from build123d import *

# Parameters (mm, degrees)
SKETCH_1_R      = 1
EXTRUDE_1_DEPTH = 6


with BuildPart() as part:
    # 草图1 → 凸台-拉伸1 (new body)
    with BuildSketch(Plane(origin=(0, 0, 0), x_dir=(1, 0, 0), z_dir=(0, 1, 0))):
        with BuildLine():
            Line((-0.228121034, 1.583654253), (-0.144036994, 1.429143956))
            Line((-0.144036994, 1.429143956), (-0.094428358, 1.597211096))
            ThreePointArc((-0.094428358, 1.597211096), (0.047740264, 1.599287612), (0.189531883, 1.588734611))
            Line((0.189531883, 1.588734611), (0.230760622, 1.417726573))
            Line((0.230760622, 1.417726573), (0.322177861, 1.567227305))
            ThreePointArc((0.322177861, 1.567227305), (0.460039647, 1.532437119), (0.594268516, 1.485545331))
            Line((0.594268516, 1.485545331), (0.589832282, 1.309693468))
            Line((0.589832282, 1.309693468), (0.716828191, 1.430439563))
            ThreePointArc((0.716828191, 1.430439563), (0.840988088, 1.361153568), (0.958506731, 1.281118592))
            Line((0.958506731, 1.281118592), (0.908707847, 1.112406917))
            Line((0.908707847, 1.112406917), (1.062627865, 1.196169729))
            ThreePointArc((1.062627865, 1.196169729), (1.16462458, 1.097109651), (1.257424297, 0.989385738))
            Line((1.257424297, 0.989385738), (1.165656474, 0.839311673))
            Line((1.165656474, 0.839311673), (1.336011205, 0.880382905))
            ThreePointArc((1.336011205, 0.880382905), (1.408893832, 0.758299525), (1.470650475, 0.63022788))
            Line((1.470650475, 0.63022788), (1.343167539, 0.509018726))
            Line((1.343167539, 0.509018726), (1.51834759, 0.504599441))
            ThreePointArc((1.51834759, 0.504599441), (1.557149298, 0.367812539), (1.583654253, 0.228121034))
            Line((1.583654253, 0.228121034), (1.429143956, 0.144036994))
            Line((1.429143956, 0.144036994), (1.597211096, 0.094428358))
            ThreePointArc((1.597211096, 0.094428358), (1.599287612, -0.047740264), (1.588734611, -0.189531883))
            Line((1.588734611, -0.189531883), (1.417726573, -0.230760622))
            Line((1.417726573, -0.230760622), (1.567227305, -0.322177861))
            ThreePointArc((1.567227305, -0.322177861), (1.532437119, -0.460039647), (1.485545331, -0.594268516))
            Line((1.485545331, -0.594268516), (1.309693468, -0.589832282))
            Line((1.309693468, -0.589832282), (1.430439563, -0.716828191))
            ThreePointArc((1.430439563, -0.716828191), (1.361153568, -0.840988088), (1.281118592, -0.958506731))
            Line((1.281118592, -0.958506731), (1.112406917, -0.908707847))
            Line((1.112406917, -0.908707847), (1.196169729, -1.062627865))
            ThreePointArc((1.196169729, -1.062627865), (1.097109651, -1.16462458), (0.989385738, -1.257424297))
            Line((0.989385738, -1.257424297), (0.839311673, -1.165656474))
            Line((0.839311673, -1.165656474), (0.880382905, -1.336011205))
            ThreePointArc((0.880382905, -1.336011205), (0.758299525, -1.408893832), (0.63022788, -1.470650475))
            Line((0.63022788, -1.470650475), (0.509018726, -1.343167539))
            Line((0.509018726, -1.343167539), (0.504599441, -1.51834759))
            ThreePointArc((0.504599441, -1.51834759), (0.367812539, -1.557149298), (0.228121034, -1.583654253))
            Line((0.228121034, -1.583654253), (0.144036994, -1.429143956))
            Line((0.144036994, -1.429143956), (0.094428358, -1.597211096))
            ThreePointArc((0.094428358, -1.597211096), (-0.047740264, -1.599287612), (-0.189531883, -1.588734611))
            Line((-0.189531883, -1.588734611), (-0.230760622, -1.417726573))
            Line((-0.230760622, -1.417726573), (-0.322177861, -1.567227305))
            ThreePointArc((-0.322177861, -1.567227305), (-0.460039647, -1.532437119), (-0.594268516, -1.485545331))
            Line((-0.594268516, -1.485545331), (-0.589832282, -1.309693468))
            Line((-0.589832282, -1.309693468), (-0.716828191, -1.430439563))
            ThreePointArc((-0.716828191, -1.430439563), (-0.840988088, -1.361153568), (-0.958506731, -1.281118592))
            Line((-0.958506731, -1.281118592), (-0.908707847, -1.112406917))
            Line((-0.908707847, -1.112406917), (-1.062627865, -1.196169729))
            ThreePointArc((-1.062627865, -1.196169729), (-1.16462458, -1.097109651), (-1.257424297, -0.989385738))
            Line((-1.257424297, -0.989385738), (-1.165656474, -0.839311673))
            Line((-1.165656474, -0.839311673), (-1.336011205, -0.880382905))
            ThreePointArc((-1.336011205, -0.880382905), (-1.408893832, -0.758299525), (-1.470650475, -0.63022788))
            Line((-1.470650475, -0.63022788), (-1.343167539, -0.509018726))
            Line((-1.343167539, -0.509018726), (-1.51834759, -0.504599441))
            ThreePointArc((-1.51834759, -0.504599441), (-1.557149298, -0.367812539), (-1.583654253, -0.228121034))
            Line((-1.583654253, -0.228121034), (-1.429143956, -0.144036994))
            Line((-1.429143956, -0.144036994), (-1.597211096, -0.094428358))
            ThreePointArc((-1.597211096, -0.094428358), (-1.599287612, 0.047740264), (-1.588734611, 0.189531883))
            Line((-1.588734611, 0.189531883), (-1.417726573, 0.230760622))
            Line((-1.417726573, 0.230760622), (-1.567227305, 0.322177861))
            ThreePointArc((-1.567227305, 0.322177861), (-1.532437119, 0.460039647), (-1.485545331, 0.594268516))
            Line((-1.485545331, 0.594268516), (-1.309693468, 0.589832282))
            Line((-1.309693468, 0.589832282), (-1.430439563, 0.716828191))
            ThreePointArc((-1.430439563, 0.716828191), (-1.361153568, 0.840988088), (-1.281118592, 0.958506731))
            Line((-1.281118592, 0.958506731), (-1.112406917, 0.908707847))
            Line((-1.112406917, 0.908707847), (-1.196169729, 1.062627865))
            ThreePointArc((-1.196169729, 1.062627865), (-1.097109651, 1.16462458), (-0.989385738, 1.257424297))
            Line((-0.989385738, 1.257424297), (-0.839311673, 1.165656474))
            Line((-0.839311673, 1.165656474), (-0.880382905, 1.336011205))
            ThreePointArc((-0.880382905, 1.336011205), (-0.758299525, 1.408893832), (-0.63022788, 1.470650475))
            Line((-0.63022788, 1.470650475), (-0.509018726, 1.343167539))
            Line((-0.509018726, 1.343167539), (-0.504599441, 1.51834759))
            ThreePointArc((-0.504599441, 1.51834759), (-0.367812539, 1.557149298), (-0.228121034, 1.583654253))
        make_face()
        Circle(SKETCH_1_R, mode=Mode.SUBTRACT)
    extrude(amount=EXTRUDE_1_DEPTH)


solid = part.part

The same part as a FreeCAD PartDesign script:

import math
import FreeCAD as App
import Part
import Sketcher

V = App.Vector

doc = App.newDocument("Part")
body = doc.addObject("PartDesign::Body", "Body")

# Sketch on XZ plane
sketch1 = body.newObject("Sketcher::SketchObject", "Sketch")
sketch1.AttachmentSupport = (doc.getObject("XZ_Plane"), [""])
sketch1.MapMode = "FlatFace"
sketch1.addGeometry([
    Part.LineSegment(V(-0.144037, -1.429144, 0), V(-0.228121, -1.583654, 0)),  # 0
    Part.ArcOfCircle(Part.Circle(V(0, 0, 0), V(0, 0, 1), 1.6), math.radians(-108.383433), math.radians(-98.196915)),  # 1
    Part.LineSegment(V(-0.504599, -1.518348, 0), V(-0.509019, -1.343168, 0)),  # 2
    Part.LineSegment(V(-0.509019, -1.343168, 0), V(-0.630228, -1.47065, 0)),  # 3
    Part.ArcOfCircle(Part.Circle(V(0, 0, 0), V(0, 0, 1), 1.6), math.radians(-123.383433), math.radians(-113.196915)),  # 4
    Part.LineSegment(V(-0.880383, -1.336011, 0), V(-0.839312, -1.165656, 0)),  # 5
    Part.LineSegment(V(-0.839312, -1.165656, 0), V(-0.989386, -1.257424, 0)),  # 6
    Part.ArcOfCircle(Part.Circle(V(0, 0, 0), V(0, 0, 1), 1.6), math.radians(-138.383432), math.radians(-128.196916)),  # 7
    Part.LineSegment(V(-1.19617, -1.062628, 0), V(-1.112407, -0.908708, 0)),  # 8
    Part.LineSegment(V(-1.112407, -0.908708, 0), V(-1.281119, -0.958507, 0)),  # 9
    Part.ArcOfCircle(Part.Circle(V(0, 0, 0), V(0, 0, 1), 1.6), math.radians(-153.383433), math.radians(-143.196915)),  # 10
    Part.LineSegment(V(-1.43044, -0.716828, 0), V(-1.309693, -0.589832, 0)),  # 11
    Part.LineSegment(V(-1.309693, -0.589832, 0), V(-1.485545, -0.594269, 0)),  # 12
    Part.ArcOfCircle(Part.Circle(V(0, 0, 0), V(0, 0, 1), 1.6), math.radians(-168.383433), math.radians(-158.196915)),  # 13
    Part.LineSegment(V(-1.567227, -0.322178, 0), V(-1.417727, -0.230761, 0)),  # 14
    Part.LineSegment(V(-1.417727, -0.230761, 0), V(-1.588735, -0.189532, 0)),  # 15
    Part.ArcOfCircle(Part.Circle(V(0, 0, 0), V(0, 0, 1), 1.6), math.radians(176.616568), math.radians(186.803085)),  # 16
    Part.LineSegment(V(-1.597211, 0.094428, 0), V(-1.429144, 0.144037, 0)),  # 17
    Part.LineSegment(V(-1.429144, 0.144037, 0), V(-1.583654, 0.228121, 0)),  # 18
    Part.ArcOfCircle(Part.Circle(V(0, 0, 0), V(0, 0, 1), 1.6), math.radians(161.616567), math.radians(171.803085)),  # 19
    Part.LineSegment(V(-1.518348, 0.504599, 0), V(-1.343168, 0.509019, 0)),  # 20
    Part.LineSegment(V(-1.343168, 0.509019, 0), V(-1.47065, 0.630228, 0)),  # 21
    Part.ArcOfCircle(Part.Circle(V(0, 0, 0), V(0, 0, 1), 1.6), math.radians(146.616567), math.radians(156.803085)),  # 22
    Part.LineSegment(V(-1.336011, 0.880383, 0), V(-1.165656, 0.839312, 0)),  # 23
    Part.LineSegment(V(-1.165656, 0.839312, 0), V(-1.257424, 0.989386, 0)),  # 24
    Part.ArcOfCircle(Part.Circle(V(0, 0, 0), V(0, 0, 1), 1.6), math.radians(131.616568), math.radians(141.803084)),  # 25
    Part.LineSegment(V(-1.062628, 1.19617, 0), V(-0.908708, 1.112407, 0)),  # 26
    Part.LineSegment(V(-0.908708, 1.112407, 0), V(-0.958507, 1.281119, 0)),  # 27
    Part.ArcOfCircle(Part.Circle(V(0, 0, 0), V(0, 0, 1), 1.6), math.radians(116.616567), math.radians(126.803085)),  # 28
    Part.LineSegment(V(-0.716828, 1.43044, 0), V(-0.589832, 1.309693, 0)),  # 29
    Part.LineSegment(V(-0.589832, 1.309693, 0), V(-0.594269, 1.485545, 0)),  # 30
    Part.ArcOfCircle(Part.Circle(V(0, 0, 0), V(0, 0, 1), 1.6), math.radians(101.616567), math.radians(111.803085)),  # 31
    Part.LineSegment(V(-0.322178, 1.567227, 0), V(-0.230761, 1.417727, 0)),  # 32
    Part.LineSegment(V(-0.230761, 1.417727, 0), V(-0.189532, 1.588735, 0)),  # 33
    Part.ArcOfCircle(Part.Circle(V(0, 0, 0), V(0, 0, 1), 1.6), math.radians(86.616568), math.radians(96.803085)),  # 34
    Part.LineSegment(V(0.094428, 1.597211, 0), V(0.144037, 1.429144, 0)),  # 35
    Part.LineSegment(V(0.144037, 1.429144, 0), V(0.228121, 1.583654, 0)),  # 36
    Part.ArcOfCircle(Part.Circle(V(0, 0, 0), V(0, 0, 1), 1.6), math.radians(71.616567), math.radians(81.803085)),  # 37
    Part.LineSegment(V(0.504599, 1.518348, 0), V(0.509019, 1.343168, 0)),  # 38
    Part.LineSegment(V(0.509019, 1.343168, 0), V(0.630228, 1.47065, 0)),  # 39
    Part.ArcOfCircle(Part.Circle(V(0, 0, 0), V(0, 0, 1), 1.6), math.radians(56.616567), math.radians(66.803085)),  # 40
    Part.LineSegment(V(0.880383, 1.336011, 0), V(0.839312, 1.165656, 0)),  # 41
    Part.LineSegment(V(0.839312, 1.165656, 0), V(0.989386, 1.257424, 0)),  # 42
    Part.ArcOfCircle(Part.Circle(V(0, 0, 0), V(0, 0, 1), 1.6), math.radians(41.616568), math.radians(51.803084)),  # 43
    Part.LineSegment(V(1.19617, 1.062628, 0), V(1.112407, 0.908708, 0)),  # 44
    Part.LineSegment(V(1.112407, 0.908708, 0), V(1.281119, 0.958507, 0)),  # 45
    Part.ArcOfCircle(Part.Circle(V(0, 0, 0), V(0, 0, 1), 1.6), math.radians(26.616567), math.radians(36.803085)),  # 46
    Part.LineSegment(V(1.43044, 0.716828, 0), V(1.309693, 0.589832, 0)),  # 47
    Part.LineSegment(V(1.309693, 0.589832, 0), V(1.485545, 0.594269, 0)),  # 48
    Part.ArcOfCircle(Part.Circle(V(0, 0, 0), V(0, 0, 1), 1.6), math.radians(11.616567), math.radians(21.803085)),  # 49
    Part.LineSegment(V(1.567227, 0.322178, 0), V(1.417727, 0.230761, 0)),  # 50
    Part.LineSegment(V(1.417727, 0.230761, 0), V(1.588735, 0.189532, 0)),  # 51
    Part.ArcOfCircle(Part.Circle(V(0, 0, 0), V(0, 0, 1), 1.6), math.radians(-3.383432), math.radians(6.803085)),  # 52
    Part.LineSegment(V(1.597211, -0.094428, 0), V(1.429144, -0.144037, 0)),  # 53
    Part.LineSegment(V(1.429144, -0.144037, 0), V(1.583654, -0.228121, 0)),  # 54
    Part.ArcOfCircle(Part.Circle(V(0, 0, 0), V(0, 0, 1), 1.6), math.radians(-18.383433), math.radians(-8.196915)),  # 55
    Part.LineSegment(V(1.518348, -0.504599, 0), V(1.343168, -0.509019, 0)),  # 56
    Part.LineSegment(V(1.343168, -0.509019, 0), V(1.47065, -0.630228, 0)),  # 57
    Part.ArcOfCircle(Part.Circle(V(0, 0, 0), V(0, 0, 1), 1.6), math.radians(-33.383433), math.radians(-23.196915)),  # 58
    Part.LineSegment(V(1.336011, -0.880383, 0), V(1.165656, -0.839312, 0)),  # 59
    Part.LineSegment(V(1.165656, -0.839312, 0), V(1.257424, -0.989386, 0)),  # 60
    Part.ArcOfCircle(Part.Circle(V(0, 0, 0), V(0, 0, 1), 1.6), math.radians(-48.383432), math.radians(-38.196916)),  # 61
    Part.LineSegment(V(1.062628, -1.19617, 0), V(0.908708, -1.112407, 0)),  # 62
    Part.LineSegment(V(0.908708, -1.112407, 0), V(0.958507, -1.281119, 0)),  # 63
    Part.ArcOfCircle(Part.Circle(V(0, 0, 0), V(0, 0, 1), 1.6), math.radians(-63.383433), math.radians(-53.196915)),  # 64
    Part.LineSegment(V(0.716828, -1.43044, 0), V(0.589832, -1.309693, 0)),  # 65
    Part.LineSegment(V(0.589832, -1.309693, 0), V(0.594269, -1.485545, 0)),  # 66
    Part.ArcOfCircle(Part.Circle(V(0, 0, 0), V(0, 0, 1), 1.6), math.radians(-78.383433), math.radians(-68.196915)),  # 67
    Part.LineSegment(V(0.322178, -1.567227, 0), V(0.230761, -1.417727, 0)),  # 68
    Part.LineSegment(V(0.230761, -1.417727, 0), V(0.189532, -1.588735, 0)),  # 69
    Part.ArcOfCircle(Part.Circle(V(0, 0, 0), V(0, 0, 1), 1.6), math.radians(-93.383432), math.radians(-83.196915)),  # 70
    Part.LineSegment(V(-0.094428, -1.597211, 0), V(-0.144037, -1.429144, 0)),  # 71
    Part.Circle(V(0, 0, 0), V(0, 0, 1), 1),  # 72
], False)
sketch1.addConstraint([
    Sketcher.Constraint("Coincident", 0, 2, 1, 2),
    Sketcher.Constraint("Coincident", 1, 1, 2, 1),
    Sketcher.Constraint("Coincident", 2, 2, 3, 1),
    Sketcher.Constraint("Coincident", 3, 2, 4, 2),
    Sketcher.Constraint("Coincident", 4, 1, 5, 1),
    Sketcher.Constraint("Coincident", 5, 2, 6, 1),
    Sketcher.Constraint("Coincident", 6, 2, 7, 2),
    Sketcher.Constraint("Coincident", 7, 1, 8, 1),
    Sketcher.Constraint("Coincident", 8, 2, 9, 1),
    Sketcher.Constraint("Coincident", 9, 2, 10, 2),
    Sketcher.Constraint("Coincident", 10, 1, 11, 1),
    Sketcher.Constraint("Coincident", 11, 2, 12, 1),
    Sketcher.Constraint("Coincident", 12, 2, 13, 2),
    Sketcher.Constraint("Coincident", 13, 1, 14, 1),
    Sketcher.Constraint("Coincident", 14, 2, 15, 1),
    Sketcher.Constraint("Coincident", 15, 2, 16, 2),
    Sketcher.Constraint("Coincident", 16, 1, 17, 1),
    Sketcher.Constraint("Coincident", 17, 2, 18, 1),
    Sketcher.Constraint("Coincident", 18, 2, 19, 2),
    Sketcher.Constraint("Coincident", 19, 1, 20, 1),
    Sketcher.Constraint("Coincident", 20, 2, 21, 1),
    Sketcher.Constraint("Coincident", 21, 2, 22, 2),
    Sketcher.Constraint("Coincident", 22, 1, 23, 1),
    Sketcher.Constraint("Coincident", 23, 2, 24, 1),
    Sketcher.Constraint("Coincident", 24, 2, 25, 2),
    Sketcher.Constraint("Coincident", 25, 1, 26, 1),
    Sketcher.Constraint("Coincident", 26, 2, 27, 1),
    Sketcher.Constraint("Coincident", 27, 2, 28, 2),
    Sketcher.Constraint("Coincident", 28, 1, 29, 1),
    Sketcher.Constraint("Coincident", 29, 2, 30, 1),
    Sketcher.Constraint("Coincident", 30, 2, 31, 2),
    Sketcher.Constraint("Coincident", 31, 1, 32, 1),
    Sketcher.Constraint("Coincident", 32, 2, 33, 1),
    Sketcher.Constraint("Coincident", 33, 2, 34, 2),
    Sketcher.Constraint("Coincident", 34, 1, 35, 1),
    Sketcher.Constraint("Coincident", 35, 2, 36, 1),
    Sketcher.Constraint("Coincident", 36, 2, 37, 2),
    Sketcher.Constraint("Coincident", 37, 1, 38, 1),
    Sketcher.Constraint("Coincident", 38, 2, 39, 1),
    Sketcher.Constraint("Coincident", 39, 2, 40, 2),
    Sketcher.Constraint("Coincident", 40, 1, 41, 1),
    Sketcher.Constraint("Coincident", 41, 2, 42, 1),
    Sketcher.Constraint("Coincident", 42, 2, 43, 2),
    Sketcher.Constraint("Coincident", 43, 1, 44, 1),
    Sketcher.Constraint("Coincident", 44, 2, 45, 1),
    Sketcher.Constraint("Coincident", 45, 2, 46, 2),
    Sketcher.Constraint("Coincident", 46, 1, 47, 1),
    Sketcher.Constraint("Coincident", 47, 2, 48, 1),
    Sketcher.Constraint("Coincident", 48, 2, 49, 2),
    Sketcher.Constraint("Coincident", 49, 1, 50, 1),
    Sketcher.Constraint("Coincident", 50, 2, 51, 1),
    Sketcher.Constraint("Coincident", 51, 2, 52, 2),
    Sketcher.Constraint("Coincident", 52, 1, 53, 1),
    Sketcher.Constraint("Coincident", 53, 2, 54, 1),
    Sketcher.Constraint("Coincident", 54, 2, 55, 2),
    Sketcher.Constraint("Coincident", 55, 1, 56, 1),
    Sketcher.Constraint("Coincident", 56, 2, 57, 1),
    Sketcher.Constraint("Coincident", 57, 2, 58, 2),
    Sketcher.Constraint("Coincident", 58, 1, 59, 1),
    Sketcher.Constraint("Coincident", 59, 2, 60, 1),
    Sketcher.Constraint("Coincident", 60, 2, 61, 2),
    Sketcher.Constraint("Coincident", 61, 1, 62, 1),
    Sketcher.Constraint("Coincident", 62, 2, 63, 1),
    Sketcher.Constraint("Coincident", 63, 2, 64, 2),
    Sketcher.Constraint("Coincident", 64, 1, 65, 1),
    Sketcher.Constraint("Coincident", 65, 2, 66, 1),
    Sketcher.Constraint("Coincident", 66, 2, 67, 2),
    Sketcher.Constraint("Coincident", 67, 1, 68, 1),
    Sketcher.Constraint("Coincident", 68, 2, 69, 1),
    Sketcher.Constraint("Coincident", 69, 2, 70, 2),
    Sketcher.Constraint("Coincident", 70, 1, 71, 1),
    Sketcher.Constraint("Coincident", 71, 2, 0, 1),
    Sketcher.Constraint("Coincident", 1, 3, -1, 1),
    Sketcher.Constraint("Coincident", 4, 3, -1, 1),
    Sketcher.Constraint("Coincident", 7, 3, -1, 1),
    Sketcher.Constraint("Coincident", 10, 3, -1, 1),
    Sketcher.Constraint("Coincident", 13, 3, -1, 1),
    Sketcher.Constraint("Coincident", 16, 3, -1, 1),
    Sketcher.Constraint("Coincident", 19, 3, -1, 1),
    Sketcher.Constraint("Coincident", 22, 3, -1, 1),
    Sketcher.Constraint("Coincident", 25, 3, -1, 1),
    Sketcher.Constraint("Coincident", 28, 3, -1, 1),
    Sketcher.Constraint("Coincident", 31, 3, -1, 1),
    Sketcher.Constraint("Coincident", 34, 3, -1, 1),
    Sketcher.Constraint("Coincident", 37, 3, -1, 1),
    Sketcher.Constraint("Coincident", 40, 3, -1, 1),
    Sketcher.Constraint("Coincident", 43, 3, -1, 1),
    Sketcher.Constraint("Coincident", 46, 3, -1, 1),
    Sketcher.Constraint("Coincident", 49, 3, -1, 1),
    Sketcher.Constraint("Coincident", 52, 3, -1, 1),
    Sketcher.Constraint("Coincident", 55, 3, -1, 1),
    Sketcher.Constraint("Coincident", 58, 3, -1, 1),
    Sketcher.Constraint("Coincident", 61, 3, -1, 1),
    Sketcher.Constraint("Coincident", 64, 3, -1, 1),
    Sketcher.Constraint("Coincident", 67, 3, -1, 1),
    Sketcher.Constraint("Coincident", 70, 3, -1, 1),
    Sketcher.Constraint("Coincident", 72, 3, -1, 1),
    Sketcher.Constraint("Equal", 1, 4),
    Sketcher.Constraint("Equal", 4, 7),
    Sketcher.Constraint("Equal", 7, 10),
    Sketcher.Constraint("Equal", 10, 13),
    Sketcher.Constraint("Equal", 13, 16),
    Sketcher.Constraint("Equal", 16, 19),
    Sketcher.Constraint("Equal", 19, 22),
    Sketcher.Constraint("Equal", 22, 25),
    Sketcher.Constraint("Equal", 25, 28),
    Sketcher.Constraint("Equal", 28, 31),
    Sketcher.Constraint("Equal", 31, 34),
    Sketcher.Constraint("Equal", 34, 37),
    Sketcher.Constraint("Equal", 37, 40),
    Sketcher.Constraint("Equal", 40, 43),
    Sketcher.Constraint("Equal", 43, 46),
    Sketcher.Constraint("Equal", 46, 49),
    Sketcher.Constraint("Equal", 49, 52),
    Sketcher.Constraint("Equal", 52, 55),
    Sketcher.Constraint("Equal", 55, 58),
    Sketcher.Constraint("Equal", 58, 61),
    Sketcher.Constraint("Equal", 61, 64),
    Sketcher.Constraint("Equal", 64, 67),
    Sketcher.Constraint("Equal", 67, 70),
    Sketcher.Constraint("Symmetric", 2, 2, 38, 2, -1, 1),
    Sketcher.Constraint("Symmetric", 5, 2, 41, 2, -1, 1),
    Sketcher.Constraint("Symmetric", 8, 2, 44, 2, -1, 1),
    Sketcher.Constraint("Symmetric", 11, 2, 47, 2, -1, 1),
    Sketcher.Constraint("Symmetric", 14, 2, 50, 2, -1, 1),
    Sketcher.Constraint("Symmetric", 17, 2, 53, 2, -1, 1),
    Sketcher.Constraint("Symmetric", 20, 2, 56, 2, -1, 1),
    Sketcher.Constraint("Symmetric", 23, 2, 59, 2, -1, 1),
    Sketcher.Constraint("Symmetric", 26, 2, 62, 2, -1, 1),
    Sketcher.Constraint("Symmetric", 29, 2, 65, 2, -1, 1),
    Sketcher.Constraint("Symmetric", 32, 2, 68, 2, -1, 1),
    Sketcher.Constraint("Symmetric", 35, 2, 71, 2, -1, 1),
    Sketcher.Constraint("Parallel", 0, 8),
    Sketcher.Constraint("Parallel", 3, 11),
    Sketcher.Constraint("Perpendicular", 2, 12),
    Sketcher.Constraint("Parallel", 6, 14),
    Sketcher.Constraint("Perpendicular", 5, 15),
    Sketcher.Constraint("Parallel", 9, 17),
    Sketcher.Constraint("Perpendicular", 8, 18),
    Sketcher.Constraint("Parallel", 12, 20),
    Sketcher.Constraint("Perpendicular", 11, 21),
    Sketcher.Constraint("Parallel", 15, 23),
    Sketcher.Constraint("Perpendicular", 14, 24),
    Sketcher.Constraint("Parallel", 18, 26),
    Sketcher.Constraint("Perpendicular", 17, 27),
    Sketcher.Constraint("Parallel", 21, 29),
    Sketcher.Constraint("Perpendicular", 20, 30),
    Sketcher.Constraint("Parallel", 24, 32),
    Sketcher.Constraint("Perpendicular", 23, 33),
    Sketcher.Constraint("Parallel", 27, 35),
    Sketcher.Constraint("Perpendicular", 26, 36),
    Sketcher.Constraint("Parallel", 30, 38),
    Sketcher.Constraint("Perpendicular", 29, 39),
    Sketcher.Constraint("Parallel", 33, 41),
    Sketcher.Constraint("Perpendicular", 32, 42),
    Sketcher.Constraint("Parallel", 36, 44),
    Sketcher.Constraint("Perpendicular", 35, 45),
    Sketcher.Constraint("Parallel", 39, 47),
    Sketcher.Constraint("Perpendicular", 38, 48),
    Sketcher.Constraint("Parallel", 42, 50),
    Sketcher.Constraint("Perpendicular", 41, 51),
    Sketcher.Constraint("Parallel", 45, 53),
    Sketcher.Constraint("Perpendicular", 44, 54),
    Sketcher.Constraint("Parallel", 48, 56),
    Sketcher.Constraint("Perpendicular", 47, 57),
    Sketcher.Constraint("Parallel", 51, 59),
    Sketcher.Constraint("Perpendicular", 50, 60),
    Sketcher.Constraint("Parallel", 54, 62),
    Sketcher.Constraint("Perpendicular", 53, 63),
    Sketcher.Constraint("Parallel", 57, 65),
    Sketcher.Constraint("Perpendicular", 56, 66),
    Sketcher.Constraint("Parallel", 60, 68),
    Sketcher.Constraint("Perpendicular", 59, 69),
    Sketcher.Constraint("Parallel", 63, 71),
    Sketcher.Constraint("Equal", 0, 3),
    Sketcher.Constraint("Equal", 2, 5),
    Sketcher.Constraint("Equal", 3, 6),
    Sketcher.Constraint("Equal", 5, 8),
    Sketcher.Constraint("Equal", 6, 9),
    Sketcher.Constraint("Equal", 8, 11),
    Sketcher.Constraint("Equal", 9, 12),
    Sketcher.Constraint("Equal", 11, 14),
    Sketcher.Constraint("Equal", 12, 15),
    Sketcher.Constraint("Equal", 14, 17),
    Sketcher.Constraint("Equal", 15, 18),
    Sketcher.Constraint("Equal", 17, 20),
    Sketcher.Constraint("Equal", 18, 21),
    Sketcher.Constraint("Equal", 20, 23),
    Sketcher.Constraint("Equal", 21, 24),
    Sketcher.Constraint("Equal", 23, 26),
    Sketcher.Constraint("Equal", 24, 27),
    Sketcher.Constraint("Equal", 26, 29),
    Sketcher.Constraint("Equal", 27, 30),
    Sketcher.Constraint("Equal", 29, 32),
    Sketcher.Constraint("Equal", 30, 33),
    Sketcher.Constraint("Equal", 32, 35),
    Sketcher.Constraint("Diameter", 72, 2.0),
    Sketcher.Constraint("Radius", 1, 1.6),
    Sketcher.Constraint("DistanceX", 1, 1, -1, 1, 0.504599),
    Sketcher.Constraint("DistanceX", 0, 2, -1, 1, 0.228121),
    Sketcher.Constraint("DistanceX", 2, 2, -1, 1, 0.509019),
    Sketcher.Constraint("DistanceY", 3, 2, -1, 1, 1.47065),
    Sketcher.Constraint("DistanceY", 4, 1, -1, 1, 1.336011),
    Sketcher.Constraint("DistanceX", 5, 2, -1, 1, 0.839312),
    Sketcher.Constraint("DistanceX", 7, 1, -1, 1, 1.19617),
    Sketcher.Constraint("DistanceX", 9, 2, -1, 1, 1.281119),
])
pad1 = body.newObject("PartDesign::Pad", "Pad")
pad1.Profile = sketch1
pad1.Length = 6
pad1.Reversed = True

doc.recompute()
